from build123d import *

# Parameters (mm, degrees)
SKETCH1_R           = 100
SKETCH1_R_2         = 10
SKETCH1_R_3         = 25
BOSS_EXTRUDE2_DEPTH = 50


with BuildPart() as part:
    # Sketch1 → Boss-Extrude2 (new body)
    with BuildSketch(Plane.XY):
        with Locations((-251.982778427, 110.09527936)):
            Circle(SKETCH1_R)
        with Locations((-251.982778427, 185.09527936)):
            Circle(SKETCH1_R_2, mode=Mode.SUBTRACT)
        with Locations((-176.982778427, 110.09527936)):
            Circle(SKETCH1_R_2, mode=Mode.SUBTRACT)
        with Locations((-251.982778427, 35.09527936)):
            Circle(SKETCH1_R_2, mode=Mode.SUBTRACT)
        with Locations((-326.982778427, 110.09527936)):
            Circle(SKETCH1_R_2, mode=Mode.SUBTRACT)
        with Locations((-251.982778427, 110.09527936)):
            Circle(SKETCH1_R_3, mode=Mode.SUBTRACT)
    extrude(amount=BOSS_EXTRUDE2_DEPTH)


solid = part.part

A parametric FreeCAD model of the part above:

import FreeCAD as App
import Part
import Sketcher

doc = App.newDocument("Part")
body = doc.addObject("PartDesign::Body", "Body")

# Sketch on XY plane
sketch1 = doc.addObject("Sketcher::SketchObject", "Sketch")
body.addObject(sketch1)
sketch1.AttachmentSupport = (doc.XY_Plane, [""])
sketch1.MapMode = "FlatFace"
sketch1.addGeometry(Part.Circle(App.Vector(-252, 110, 0), App.Vector(0, 0, 1), 100), False)
sketch1.addGeometry(Part.Circle(App.Vector(-252, 35, 0), App.Vector(0, 0, 1), 10), False)
sketch1.addGeometry(Part.Circle(App.Vector(-327, 110, 0), App.Vector(0, 0, 1), 10), False)
sketch1.addGeometry(Part.Circle(App.Vector(-252, 110, 0), App.Vector(0, 0, 1), 25), False)
sketch1.addGeometry(Part.Circle(App.Vector(-177, 110, 0), App.Vector(0, 0, 1), 10), False)
sketch1.addGeometry(Part.Circle(App.Vector(-252, 185, 0), App.Vector(0, 0, 1), 10), False)
sketch1.addConstraint(Sketcher.Constraint("Coincident", 3, 3, 0, 3))
sketch1.addConstraint(Sketcher.Constraint("Equal", 1, 2))
sketch1.addConstraint(Sketcher.Constraint("Equal", 2, 4))
sketch1.addConstraint(Sketcher.Constraint("Equal", 4, 5))
sketch1.addConstraint(Sketcher.Constraint("Horizontal", 0, 3, 2, 3))
sketch1.addConstraint(Sketcher.Constraint("Horizontal", 3, 3, 4, 3))
sketch1.addConstraint(Sketcher.Constraint("Vertical", 0, 3, 1, 3))
sketch1.addConstraint(Sketcher.Constraint("Vertical", 3, 3, 5, 3))
sketch1.addConstraint(Sketcher.Constraint("Diameter", 0, 200.0))
sketch1.addConstraint(Sketcher.Constraint("Diameter", 1, 20.0))
sketch1.addConstraint(Sketcher.Constraint("Diameter", 3, 50.0))
sketch1.addConstraint(Sketcher.Constraint("DistanceY", 1, 3, 0, 3, 75.0))
sketch1.addConstraint(Sketcher.Constraint("DistanceX", 2, 3, 0, 3, 75.0))
sketch1.addConstraint(Sketcher.Constraint("DistanceX", 0, 3, 4, 3, 75.0))
sketch1.addConstraint(Sketcher.Constraint("DistanceY", 0, 3, 5, 3, 75.0))
sketch1.addConstraint(Sketcher.Constraint("DistanceX", 0, 3, -1, 1, 251.982778))
sketch1.addConstraint(Sketcher.Constraint("DistanceY", -1, 1, 0, 3, 110.095279))
pad1 = doc.addObject("PartDesign::Pad", "Pad")
body.addObject(pad1)
pad1.Profile = sketch1
pad1.Length = 50

doc.recompute()
